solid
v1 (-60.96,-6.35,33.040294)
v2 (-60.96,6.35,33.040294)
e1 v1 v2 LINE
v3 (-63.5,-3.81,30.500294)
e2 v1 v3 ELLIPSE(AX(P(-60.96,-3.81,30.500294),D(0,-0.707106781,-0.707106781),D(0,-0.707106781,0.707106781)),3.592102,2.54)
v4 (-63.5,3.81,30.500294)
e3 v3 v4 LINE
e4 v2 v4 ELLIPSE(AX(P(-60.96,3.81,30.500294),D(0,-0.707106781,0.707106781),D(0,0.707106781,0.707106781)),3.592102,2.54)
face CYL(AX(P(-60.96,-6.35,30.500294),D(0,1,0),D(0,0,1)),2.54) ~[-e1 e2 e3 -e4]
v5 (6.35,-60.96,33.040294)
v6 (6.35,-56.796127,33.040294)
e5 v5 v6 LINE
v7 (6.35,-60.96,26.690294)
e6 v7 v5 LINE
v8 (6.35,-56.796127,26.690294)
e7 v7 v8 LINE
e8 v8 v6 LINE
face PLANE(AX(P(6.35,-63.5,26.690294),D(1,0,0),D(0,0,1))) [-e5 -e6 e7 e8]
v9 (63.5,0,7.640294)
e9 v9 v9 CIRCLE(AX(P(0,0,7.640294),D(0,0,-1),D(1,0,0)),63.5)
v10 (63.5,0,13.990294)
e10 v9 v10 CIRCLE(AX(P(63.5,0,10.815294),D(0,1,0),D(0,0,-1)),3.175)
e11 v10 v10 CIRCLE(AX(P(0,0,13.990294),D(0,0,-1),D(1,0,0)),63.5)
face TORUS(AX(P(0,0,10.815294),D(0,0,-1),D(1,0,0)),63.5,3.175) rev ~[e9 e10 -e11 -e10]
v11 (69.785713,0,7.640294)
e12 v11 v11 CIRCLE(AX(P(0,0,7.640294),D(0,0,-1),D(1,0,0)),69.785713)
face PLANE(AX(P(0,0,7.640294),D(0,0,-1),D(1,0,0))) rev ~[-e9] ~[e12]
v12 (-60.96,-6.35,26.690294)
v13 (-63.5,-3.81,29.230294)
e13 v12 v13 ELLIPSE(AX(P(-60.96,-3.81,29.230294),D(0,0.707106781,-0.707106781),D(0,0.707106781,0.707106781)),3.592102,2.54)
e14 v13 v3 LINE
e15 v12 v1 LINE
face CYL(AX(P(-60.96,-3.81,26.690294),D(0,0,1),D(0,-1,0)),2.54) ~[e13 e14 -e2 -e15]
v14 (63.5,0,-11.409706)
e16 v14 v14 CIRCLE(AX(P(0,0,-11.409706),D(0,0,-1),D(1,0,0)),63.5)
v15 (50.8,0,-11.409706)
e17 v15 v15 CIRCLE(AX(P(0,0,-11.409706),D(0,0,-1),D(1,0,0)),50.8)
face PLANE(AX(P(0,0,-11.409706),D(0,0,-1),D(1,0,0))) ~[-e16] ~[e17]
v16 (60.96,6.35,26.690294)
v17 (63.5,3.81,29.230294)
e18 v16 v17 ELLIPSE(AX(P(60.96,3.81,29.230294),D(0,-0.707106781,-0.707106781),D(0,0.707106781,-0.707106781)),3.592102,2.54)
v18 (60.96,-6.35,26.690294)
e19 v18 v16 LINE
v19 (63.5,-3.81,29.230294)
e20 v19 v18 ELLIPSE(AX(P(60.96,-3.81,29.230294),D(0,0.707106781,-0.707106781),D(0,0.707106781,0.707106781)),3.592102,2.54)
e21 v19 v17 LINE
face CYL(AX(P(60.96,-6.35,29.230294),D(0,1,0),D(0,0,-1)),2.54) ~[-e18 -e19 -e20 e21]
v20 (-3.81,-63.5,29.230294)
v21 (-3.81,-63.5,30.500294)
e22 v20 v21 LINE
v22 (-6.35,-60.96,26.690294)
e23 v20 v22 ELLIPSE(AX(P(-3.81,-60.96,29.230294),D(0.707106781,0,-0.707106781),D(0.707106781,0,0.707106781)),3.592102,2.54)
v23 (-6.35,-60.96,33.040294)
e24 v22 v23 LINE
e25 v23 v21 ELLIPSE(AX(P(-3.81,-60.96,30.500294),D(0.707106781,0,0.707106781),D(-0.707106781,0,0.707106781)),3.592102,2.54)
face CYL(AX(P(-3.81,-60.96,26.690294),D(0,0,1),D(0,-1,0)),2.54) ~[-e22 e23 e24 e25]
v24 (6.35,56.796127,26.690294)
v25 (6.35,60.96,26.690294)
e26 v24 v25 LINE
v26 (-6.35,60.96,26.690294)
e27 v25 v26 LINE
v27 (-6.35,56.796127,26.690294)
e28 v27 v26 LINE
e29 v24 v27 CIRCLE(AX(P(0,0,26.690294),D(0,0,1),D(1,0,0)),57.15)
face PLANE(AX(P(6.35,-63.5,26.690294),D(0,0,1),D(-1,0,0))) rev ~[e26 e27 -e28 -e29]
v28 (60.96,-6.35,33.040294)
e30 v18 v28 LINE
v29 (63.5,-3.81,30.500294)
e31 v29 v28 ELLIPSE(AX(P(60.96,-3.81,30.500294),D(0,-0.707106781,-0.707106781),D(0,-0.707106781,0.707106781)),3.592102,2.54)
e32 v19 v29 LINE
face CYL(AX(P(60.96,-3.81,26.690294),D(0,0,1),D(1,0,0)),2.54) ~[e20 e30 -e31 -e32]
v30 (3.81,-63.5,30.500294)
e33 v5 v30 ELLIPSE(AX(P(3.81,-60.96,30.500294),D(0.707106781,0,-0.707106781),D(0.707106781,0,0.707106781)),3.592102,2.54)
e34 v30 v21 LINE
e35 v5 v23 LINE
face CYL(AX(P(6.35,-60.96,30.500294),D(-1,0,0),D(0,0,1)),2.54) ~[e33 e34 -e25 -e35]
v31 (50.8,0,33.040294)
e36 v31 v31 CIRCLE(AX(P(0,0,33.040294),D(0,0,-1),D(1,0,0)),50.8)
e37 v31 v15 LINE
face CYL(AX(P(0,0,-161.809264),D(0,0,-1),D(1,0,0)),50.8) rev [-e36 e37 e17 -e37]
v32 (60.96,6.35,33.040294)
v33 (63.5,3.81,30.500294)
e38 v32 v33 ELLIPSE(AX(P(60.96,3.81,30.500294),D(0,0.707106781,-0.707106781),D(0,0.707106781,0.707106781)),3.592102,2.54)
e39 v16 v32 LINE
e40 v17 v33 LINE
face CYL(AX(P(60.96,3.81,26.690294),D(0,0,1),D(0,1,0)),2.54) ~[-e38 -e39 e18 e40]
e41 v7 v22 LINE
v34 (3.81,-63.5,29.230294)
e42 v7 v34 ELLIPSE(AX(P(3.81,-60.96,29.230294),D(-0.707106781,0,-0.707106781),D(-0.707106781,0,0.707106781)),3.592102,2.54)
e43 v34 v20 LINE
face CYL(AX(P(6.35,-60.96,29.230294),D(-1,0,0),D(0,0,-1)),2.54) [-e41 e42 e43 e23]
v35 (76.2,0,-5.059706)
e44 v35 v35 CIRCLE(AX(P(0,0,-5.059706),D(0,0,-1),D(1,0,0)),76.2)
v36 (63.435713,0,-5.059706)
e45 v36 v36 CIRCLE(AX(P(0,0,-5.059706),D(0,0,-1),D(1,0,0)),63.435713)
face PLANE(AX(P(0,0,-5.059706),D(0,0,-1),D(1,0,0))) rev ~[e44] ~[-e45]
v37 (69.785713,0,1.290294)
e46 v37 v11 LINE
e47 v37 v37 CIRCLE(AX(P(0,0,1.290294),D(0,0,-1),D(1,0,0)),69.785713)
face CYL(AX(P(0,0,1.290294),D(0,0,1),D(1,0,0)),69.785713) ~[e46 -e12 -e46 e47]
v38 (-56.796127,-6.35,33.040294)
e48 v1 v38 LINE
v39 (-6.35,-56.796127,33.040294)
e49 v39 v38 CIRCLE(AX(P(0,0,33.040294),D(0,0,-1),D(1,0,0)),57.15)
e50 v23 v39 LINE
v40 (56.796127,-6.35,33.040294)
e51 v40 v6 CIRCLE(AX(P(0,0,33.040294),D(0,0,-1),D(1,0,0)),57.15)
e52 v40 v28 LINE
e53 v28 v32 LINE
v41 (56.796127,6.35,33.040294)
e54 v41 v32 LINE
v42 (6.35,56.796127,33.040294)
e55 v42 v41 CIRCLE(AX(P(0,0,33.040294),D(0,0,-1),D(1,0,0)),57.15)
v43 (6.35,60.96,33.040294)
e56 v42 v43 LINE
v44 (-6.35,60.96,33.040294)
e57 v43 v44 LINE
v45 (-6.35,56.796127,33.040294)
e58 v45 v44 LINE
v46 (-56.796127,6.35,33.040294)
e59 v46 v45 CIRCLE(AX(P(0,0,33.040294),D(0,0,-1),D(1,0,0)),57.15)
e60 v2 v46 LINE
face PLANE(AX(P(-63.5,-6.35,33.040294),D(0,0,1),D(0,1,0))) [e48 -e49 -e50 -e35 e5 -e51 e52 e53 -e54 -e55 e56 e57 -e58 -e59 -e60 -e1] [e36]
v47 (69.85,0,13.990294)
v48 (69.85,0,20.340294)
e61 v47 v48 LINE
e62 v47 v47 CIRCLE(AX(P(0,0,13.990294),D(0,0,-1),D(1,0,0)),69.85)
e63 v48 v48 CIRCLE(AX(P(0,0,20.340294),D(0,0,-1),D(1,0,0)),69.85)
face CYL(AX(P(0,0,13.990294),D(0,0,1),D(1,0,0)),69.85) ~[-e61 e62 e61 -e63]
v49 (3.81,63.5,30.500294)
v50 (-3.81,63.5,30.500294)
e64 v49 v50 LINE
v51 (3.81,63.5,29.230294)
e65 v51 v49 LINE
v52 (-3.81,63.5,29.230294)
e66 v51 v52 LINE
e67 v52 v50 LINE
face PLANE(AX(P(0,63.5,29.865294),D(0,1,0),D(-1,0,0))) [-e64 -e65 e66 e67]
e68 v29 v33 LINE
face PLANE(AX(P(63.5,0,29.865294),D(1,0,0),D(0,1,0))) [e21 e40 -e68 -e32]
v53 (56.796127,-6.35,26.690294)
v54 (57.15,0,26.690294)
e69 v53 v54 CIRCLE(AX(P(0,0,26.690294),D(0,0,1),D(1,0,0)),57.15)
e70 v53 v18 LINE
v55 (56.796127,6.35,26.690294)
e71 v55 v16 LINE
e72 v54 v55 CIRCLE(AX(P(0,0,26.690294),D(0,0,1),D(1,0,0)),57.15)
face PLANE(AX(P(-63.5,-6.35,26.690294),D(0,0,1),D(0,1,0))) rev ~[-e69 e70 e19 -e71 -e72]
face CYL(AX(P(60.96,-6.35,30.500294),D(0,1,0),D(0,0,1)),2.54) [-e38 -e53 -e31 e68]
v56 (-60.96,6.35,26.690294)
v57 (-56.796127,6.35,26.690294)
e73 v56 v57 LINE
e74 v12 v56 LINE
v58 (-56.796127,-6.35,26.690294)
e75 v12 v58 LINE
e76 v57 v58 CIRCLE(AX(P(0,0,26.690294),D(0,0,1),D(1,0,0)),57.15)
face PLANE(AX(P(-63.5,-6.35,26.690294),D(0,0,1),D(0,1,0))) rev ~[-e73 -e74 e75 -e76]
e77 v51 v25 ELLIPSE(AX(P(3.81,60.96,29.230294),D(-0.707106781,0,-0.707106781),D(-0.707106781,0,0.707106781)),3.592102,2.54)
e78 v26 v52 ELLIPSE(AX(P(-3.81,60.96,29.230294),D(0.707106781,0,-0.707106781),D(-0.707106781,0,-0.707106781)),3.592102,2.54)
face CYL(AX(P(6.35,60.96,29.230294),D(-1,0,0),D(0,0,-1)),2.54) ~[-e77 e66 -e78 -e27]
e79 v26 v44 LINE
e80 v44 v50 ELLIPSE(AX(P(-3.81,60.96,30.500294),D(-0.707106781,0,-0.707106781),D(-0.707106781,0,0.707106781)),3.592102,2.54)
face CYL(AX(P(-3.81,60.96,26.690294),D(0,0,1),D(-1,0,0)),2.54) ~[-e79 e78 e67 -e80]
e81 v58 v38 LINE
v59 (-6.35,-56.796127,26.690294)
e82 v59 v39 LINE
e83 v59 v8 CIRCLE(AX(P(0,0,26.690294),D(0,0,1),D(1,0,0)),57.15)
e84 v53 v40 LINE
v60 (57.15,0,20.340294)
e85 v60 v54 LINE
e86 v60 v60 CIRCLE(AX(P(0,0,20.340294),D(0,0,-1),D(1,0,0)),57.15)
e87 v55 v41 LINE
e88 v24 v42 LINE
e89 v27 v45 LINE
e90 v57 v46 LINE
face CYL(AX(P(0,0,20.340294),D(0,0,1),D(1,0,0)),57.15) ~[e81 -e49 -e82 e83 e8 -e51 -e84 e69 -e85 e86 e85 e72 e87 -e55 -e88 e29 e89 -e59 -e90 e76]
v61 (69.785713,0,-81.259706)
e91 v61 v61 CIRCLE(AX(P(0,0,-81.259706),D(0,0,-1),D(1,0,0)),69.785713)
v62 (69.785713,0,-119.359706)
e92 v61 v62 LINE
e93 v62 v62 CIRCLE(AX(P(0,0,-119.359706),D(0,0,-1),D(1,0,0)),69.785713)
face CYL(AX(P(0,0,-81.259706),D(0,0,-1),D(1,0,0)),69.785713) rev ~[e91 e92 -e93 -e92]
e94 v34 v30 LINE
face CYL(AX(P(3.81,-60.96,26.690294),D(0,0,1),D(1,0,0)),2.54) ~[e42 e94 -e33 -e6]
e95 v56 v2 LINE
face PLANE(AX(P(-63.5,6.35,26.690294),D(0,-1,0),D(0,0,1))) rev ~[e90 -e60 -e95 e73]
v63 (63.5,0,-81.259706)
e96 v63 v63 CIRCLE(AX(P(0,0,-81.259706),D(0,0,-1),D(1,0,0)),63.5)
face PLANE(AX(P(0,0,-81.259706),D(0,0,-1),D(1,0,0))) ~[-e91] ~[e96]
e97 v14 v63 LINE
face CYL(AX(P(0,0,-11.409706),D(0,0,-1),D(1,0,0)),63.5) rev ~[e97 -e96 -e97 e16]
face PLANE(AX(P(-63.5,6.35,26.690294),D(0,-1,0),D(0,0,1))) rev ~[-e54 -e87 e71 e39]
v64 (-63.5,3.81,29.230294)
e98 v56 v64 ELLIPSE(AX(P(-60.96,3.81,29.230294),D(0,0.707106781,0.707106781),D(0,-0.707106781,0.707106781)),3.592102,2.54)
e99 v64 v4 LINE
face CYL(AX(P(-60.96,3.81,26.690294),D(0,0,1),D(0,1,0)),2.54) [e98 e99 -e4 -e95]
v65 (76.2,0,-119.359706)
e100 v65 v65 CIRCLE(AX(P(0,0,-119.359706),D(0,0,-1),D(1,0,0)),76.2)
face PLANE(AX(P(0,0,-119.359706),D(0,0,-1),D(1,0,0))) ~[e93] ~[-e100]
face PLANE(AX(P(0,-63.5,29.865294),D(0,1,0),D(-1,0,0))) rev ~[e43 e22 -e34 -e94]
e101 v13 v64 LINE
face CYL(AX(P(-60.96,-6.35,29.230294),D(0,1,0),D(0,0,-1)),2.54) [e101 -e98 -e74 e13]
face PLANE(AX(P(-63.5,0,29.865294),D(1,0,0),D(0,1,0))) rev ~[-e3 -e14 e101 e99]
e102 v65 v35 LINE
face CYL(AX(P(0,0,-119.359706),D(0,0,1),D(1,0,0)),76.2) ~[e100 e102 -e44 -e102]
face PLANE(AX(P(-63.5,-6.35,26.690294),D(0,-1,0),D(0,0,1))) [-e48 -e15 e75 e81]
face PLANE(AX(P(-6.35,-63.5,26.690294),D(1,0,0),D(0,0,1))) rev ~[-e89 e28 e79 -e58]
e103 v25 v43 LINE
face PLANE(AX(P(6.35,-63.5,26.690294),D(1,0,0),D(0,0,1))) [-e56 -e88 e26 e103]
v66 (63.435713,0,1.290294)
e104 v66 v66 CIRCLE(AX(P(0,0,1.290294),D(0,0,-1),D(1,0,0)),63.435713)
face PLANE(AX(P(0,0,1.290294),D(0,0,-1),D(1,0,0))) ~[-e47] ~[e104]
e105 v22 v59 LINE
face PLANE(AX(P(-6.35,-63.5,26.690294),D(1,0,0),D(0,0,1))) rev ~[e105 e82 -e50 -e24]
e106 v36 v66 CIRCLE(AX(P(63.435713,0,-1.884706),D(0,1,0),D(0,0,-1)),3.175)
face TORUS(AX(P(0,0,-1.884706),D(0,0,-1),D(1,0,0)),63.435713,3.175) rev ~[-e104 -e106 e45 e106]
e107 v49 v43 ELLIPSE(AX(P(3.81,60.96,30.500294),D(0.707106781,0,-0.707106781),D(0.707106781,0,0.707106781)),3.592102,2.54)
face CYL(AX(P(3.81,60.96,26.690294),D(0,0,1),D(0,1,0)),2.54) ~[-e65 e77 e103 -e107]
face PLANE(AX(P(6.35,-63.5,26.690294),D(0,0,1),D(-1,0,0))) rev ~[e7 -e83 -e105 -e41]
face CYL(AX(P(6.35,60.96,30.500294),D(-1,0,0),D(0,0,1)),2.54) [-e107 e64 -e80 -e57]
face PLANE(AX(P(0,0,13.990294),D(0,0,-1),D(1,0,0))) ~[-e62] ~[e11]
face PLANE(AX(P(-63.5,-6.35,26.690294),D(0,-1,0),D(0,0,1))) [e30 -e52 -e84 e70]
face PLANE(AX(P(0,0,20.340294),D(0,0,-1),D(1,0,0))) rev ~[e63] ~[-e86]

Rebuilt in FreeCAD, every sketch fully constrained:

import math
import FreeCAD as App
import Part
import Sketcher
Q = App.Units.Quantity


def edges_at(feature, points):
    """Names of the edges that pass closest to the given points."""
    edges = feature.Shape.Edges
    near = lambda p: min(range(len(edges)), key=lambda i: edges[i].distToShape(Part.Vertex(*p))[0])
    return sorted({f"Edge{near(p) + 1}" for p in points})

doc = App.newDocument("Part")
body = doc.addObject("PartDesign::Body", "Body")

# Sketch on YZ plane
sketch1 = doc.addObject("Sketcher::SketchObject", "Sketch")
body.addObject(sketch1)
sketch1.AttachmentSupport = (doc.YZ_Plane, [""])
sketch1.MapMode = "FlatFace"
sketch1.addGeometry([
    Part.LineSegment(App.Vector(-76.2, -5.1, 0), App.Vector(-76.2, -119.4, 0)),  # 0
    Part.LineSegment(App.Vector(-76.2, -119.4, 0), App.Vector(-69.8, -119.4, 0)),  # 1
    Part.LineSegment(App.Vector(-69.8, -119.4, 0), App.Vector(-69.8, -81.3, 0)),  # 2
    Part.LineSegment(App.Vector(-69.8, -81.3, 0), App.Vector(-63.5, -81.3, 0)),  # 3
    Part.LineSegment(App.Vector(-63.5, -81.3, 0), App.Vector(-63.5, -11.4, 0)),  # 4
    Part.LineSegment(App.Vector(-63.5, -11.4, 0), App.Vector(-50.8, -11.4, 0)),  # 5
    Part.LineSegment(App.Vector(-50.8, -11.4, 0), App.Vector(-50.8, 33, 0)),  # 6
    Part.LineSegment(App.Vector(-50.8, 33, 0), App.Vector(-57.1, 33, 0)),  # 7
    Part.LineSegment(App.Vector(-57.1, 33, 0), App.Vector(-57.1, 20.3, 0)),  # 8
    Part.LineSegment(App.Vector(-57.1, 20.3, 0), App.Vector(-69.8, 20.3, 0)),  # 9
    Part.LineSegment(App.Vector(-69.8, 20.3, 0), App.Vector(-69.8, 14, 0)),  # 10
    Part.LineSegment(App.Vector(-69.8, 14, 0), App.Vector(-63.5, 14, 0)),  # 11
    Part.ArcOfCircle(Part.Circle(App.Vector(-63.5, 10.8, 0), App.Vector(0, 0, 1), 3.2), math.radians(-90), math.radians(90)),  # 12
    Part.LineSegment(App.Vector(-63.5, 7.6, 0), App.Vector(-69.8, 7.6, 0)),  # 13
    Part.LineSegment(App.Vector(-69.8, 7.6, 0), App.Vector(-69.8, 1.3, 0)),  # 14
    Part.LineSegment(App.Vector(-69.8, 1.3, 0), App.Vector(-63.4, 1.3, 0)),  # 15
    Part.ArcOfCircle(Part.Circle(App.Vector(-63.4, -1.9, 0), App.Vector(0, 0, 1), 3.2), math.radians(-90), math.radians(90)),  # 16
    Part.LineSegment(App.Vector(-63.4, -5.1, 0), App.Vector(-76.2, -5.1, 0)),  # 17
], False)
sketch1.addConstraint([
    Sketcher.Constraint("Coincident", 0, 2, 1, 1),
    Sketcher.Constraint("Coincident", 1, 2, 2, 1),
    Sketcher.Constraint("Coincident", 2, 2, 3, 1),
    Sketcher.Constraint("Coincident", 3, 2, 4, 1),
    Sketcher.Constraint("Coincident", 4, 2, 5, 1),
    Sketcher.Constraint("Coincident", 5, 2, 6, 1),
    Sketcher.Constraint("Coincident", 6, 2, 7, 1),
    Sketcher.Constraint("Coincident", 7, 2, 8, 1),
    Sketcher.Constraint("Coincident", 8, 2, 9, 1),
    Sketcher.Constraint("Coincident", 9, 2, 10, 1),
    Sketcher.Constraint("Coincident", 10, 2, 11, 1),
    Sketcher.Constraint("Tangent", 11, 2, 12, 2),
    Sketcher.Constraint("Tangent", 12, 1, 13, 1),
    Sketcher.Constraint("Coincident", 13, 2, 14, 1),
    Sketcher.Constraint("Coincident", 14, 2, 15, 1),
    Sketcher.Constraint("Tangent", 15, 2, 16, 2),
    Sketcher.Constraint("Tangent", 16, 1, 17, 1),
    Sketcher.Constraint("Coincident", 17, 2, 0, 1),
    Sketcher.Constraint("Vertical", 0),
    Sketcher.Constraint("Horizontal", 1),
    Sketcher.Constraint("Vertical", 2),
    Sketcher.Constraint("Horizontal", 3),
    Sketcher.Constraint("Vertical", 4),
    Sketcher.Constraint("Horizontal", 5),
    Sketcher.Constraint("Vertical", 6),
    Sketcher.Constraint("Horizontal", 7),
    Sketcher.Constraint("Vertical", 8),
    Sketcher.Constraint("Horizontal", 9),
    Sketcher.Constraint("Vertical", 10),
    Sketcher.Constraint("Horizontal", 11),
    Sketcher.Constraint("Horizontal", 13),
    Sketcher.Constraint("Vertical", 14),
    Sketcher.Constraint("Horizontal", 15),
    Sketcher.Constraint("Horizontal", 17),
    Sketcher.Constraint("Equal", 12, 16),
    Sketcher.Constraint("Vertical", 12, 3, 3, 2),
    Sketcher.Constraint("Vertical", 2, 2, 13, 2),
    Sketcher.Constraint("Equal", 5, 9),
    Sketcher.Constraint("Equal", 11, 15),
    Sketcher.Constraint("Equal", 9, 8),
    Sketcher.Constraint("Equal", 15, 10),
    Sketcher.Constraint("Equal", 10, 14),
    Sketcher.Constraint("DistanceX", 5, 1, 5, 2, Q("0.5 in")),
    Sketcher.Constraint("DistanceY", 0, 2, 0, 1, Q("4.5 in")),
    Sketcher.Constraint("DistanceY", 2, 1, 2, 2, Q("1.5 in")),
    Sketcher.Constraint("DistanceX", 0, 2, -1, 1, Q("3 in")),
    Sketcher.Constraint("DistanceX", 5, 2, -1, 1, Q("2 in")),
    Sketcher.Constraint("Radius", 12, Q("0.125 in")),
    Sketcher.Constraint("DistanceX", 7, 2, 7, 1, Q("0.25 in")),
    Sketcher.Constraint("DistanceY", 4, 1, 4, 2, Q("2.75 in")),
    Sketcher.Constraint("DistanceX", 1, 1, 1, 2, Q("6.414287 mm")),
    Sketcher.Constraint("DistanceY", -1, 1, 12, 3, Q("10.815294 mm")),
])
revolution = doc.addObject("PartDesign::Revolution", "Revolution")
body.addObject(revolution)
revolution.Profile = sketch1
revolution.ReferenceAxis = (sketch1, ["V_Axis"])
revolution.Angle = 360

# Sketch on YZ plane
sketch2 = doc.addObject("Sketcher::SketchObject", "Sketch001")
body.addObject(sketch2)
sketch2.AttachmentSupport = (doc.YZ_Plane, [""])
sketch2.MapMode = "FlatFace"
sketch2.addGeometry([
    Part.LineSegment(App.Vector(-6, 33, 0), App.Vector(-6, 27, 0)),
    Part.LineSegment(App.Vector(-6, 27, 0), App.Vector(6, 27, 0)),
    Part.LineSegment(App.Vector(6, 27, 0), App.Vector(6, 33, 0)),
    Part.LineSegment(App.Vector(6, 33, 0), App.Vector(-6, 33, 0)),
], False)
sketch2.addConstraint([
    Sketcher.Constraint("Coincident", 0, 2, 1, 1),
    Sketcher.Constraint("Coincident", 1, 2, 2, 1),
    Sketcher.Constraint("Coincident", 2, 2, 3, 1),
    Sketcher.Constraint("Coincident", 3, 2, 0, 1),
    Sketcher.Constraint("Vertical", 0),
    Sketcher.Constraint("Horizontal", 1),
    Sketcher.Constraint("Vertical", 2),
    Sketcher.Constraint("Horizontal", 3),
    Sketcher.Constraint("DistanceX", 1, 1, 1, 2, Q("0.5 in")),
    Sketcher.Constraint("DistanceY", 0, 2, 0, 1, Q("0.25 in")),
    Sketcher.Constraint("DistanceX", 0, 2, -1, 1, Q("0.25 in")),
    Sketcher.Constraint("DistanceY", -1, 1, 0, 2, Q("26.690294 mm")),
])
pad1 = doc.addObject("PartDesign::Pad", "Pad")
body.addObject(pad1)
pad1.Profile = sketch2
pad1.Type = "TwoLengths"
pad1.Length = Q("2.5 in")
pad1.Length2 = Q("2.5 in")

# Sketch on XZ plane
sketch3 = doc.addObject("Sketcher::SketchObject", "Sketch002")
body.addObject(sketch3)
sketch3.AttachmentSupport = (doc.XZ_Plane, [""])
sketch3.MapMode = "FlatFace"
sketch3.addGeometry([
    Part.LineSegment(App.Vector(6, 33, 0), App.Vector(6, 27, 0)),
    Part.LineSegment(App.Vector(6, 27, 0), App.Vector(-6, 27, 0)),
    Part.LineSegment(App.Vector(-6, 27, 0), App.Vector(-6, 33, 0)),
    Part.LineSegment(App.Vector(-6, 33, 0), App.Vector(6, 33, 0)),
], False)
sketch3.addConstraint([
    Sketcher.Constraint("Coincident", 0, 2, 1, 1),
    Sketcher.Constraint("Coincident", 1, 2, 2, 1),
    Sketcher.Constraint("Coincident", 2, 2, 3, 1),
    Sketcher.Constraint("Coincident", 3, 2, 0, 1),
    Sketcher.Constraint("Vertical", 0),
    Sketcher.Constraint("Horizontal", 1),
    Sketcher.Constraint("Vertical", 2),
    Sketcher.Constraint("Horizontal", 3),
    Sketcher.Constraint("DistanceX", 1, 2, 1, 1, Q("0.5 in")),
    Sketcher.Constraint("DistanceY", 0, 2, 0, 1, Q("0.25 in")),
    Sketcher.Constraint("DistanceX", -1, 1, 0, 2, Q("0.25 in")),
    Sketcher.Constraint("DistanceY", -1, 1, 0, 2, Q("26.690294 mm")),
])
pad2 = doc.addObject("PartDesign::Pad", "Pad001")
body.addObject(pad2)
pad2.Profile = sketch3
pad2.Type = "TwoLengths"
pad2.Length = Q("2.5 in")
pad2.Length2 = Q("2.5 in")
pad2.Reversed = True

# Sketch on XY plane
sketch4 = doc.addObject("Sketcher::SketchObject", "Sketch003")
body.addObject(sketch4)
sketch4.AttachmentSupport = (doc.XY_Plane, [""])
sketch4.MapMode = "FlatFace"
sketch4.addGeometry(Part.Circle(App.Vector(0, 0, 0), App.Vector(0, 0, 1), 51), False)
sketch4.addConstraint([
    Sketcher.Constraint("Coincident", 0, 3, -1, 1),
    Sketcher.Constraint("Diameter", 0, Q("4 in")),
])
pocket1 = doc.addObject("PartDesign::Pocket", "Pocket")
body.addObject(pocket1)
pocket1.Profile = sketch4
pocket1.Type = "ThroughAll"
pocket1.Midplane = True
doc.recompute()

fillet = doc.addObject("PartDesign::Fillet", "Fillet")
body.addObject(fillet)
fillet.Base = (pocket1, edges_at(pocket1, [
    (6.35, 63.5, 29.865),
    (0, 63.5, 26.69),
    (-6.35, 63.5, 29.865),
    (0, 63.5, 33.04),
    (-63.5, -6.35, 29.865),
    (-63.5, 0, 33.04),
    (-63.5, 6.35, 29.865),
    (-63.5, 0, 26.69),
    (63.5, -6.35, 29.865),
    (63.5, 0, 26.69),
    (63.5, 6.35, 29.865),
    (63.5, 0, 33.04),
    (6.35, -63.5, 29.865),
    (0, -63.5, 33.04),
    (-6.35, -63.5, 29.865),
    (0, -63.5, 26.69),
]))
fillet.Radius = Q("0.1 in")

doc.recompute()
